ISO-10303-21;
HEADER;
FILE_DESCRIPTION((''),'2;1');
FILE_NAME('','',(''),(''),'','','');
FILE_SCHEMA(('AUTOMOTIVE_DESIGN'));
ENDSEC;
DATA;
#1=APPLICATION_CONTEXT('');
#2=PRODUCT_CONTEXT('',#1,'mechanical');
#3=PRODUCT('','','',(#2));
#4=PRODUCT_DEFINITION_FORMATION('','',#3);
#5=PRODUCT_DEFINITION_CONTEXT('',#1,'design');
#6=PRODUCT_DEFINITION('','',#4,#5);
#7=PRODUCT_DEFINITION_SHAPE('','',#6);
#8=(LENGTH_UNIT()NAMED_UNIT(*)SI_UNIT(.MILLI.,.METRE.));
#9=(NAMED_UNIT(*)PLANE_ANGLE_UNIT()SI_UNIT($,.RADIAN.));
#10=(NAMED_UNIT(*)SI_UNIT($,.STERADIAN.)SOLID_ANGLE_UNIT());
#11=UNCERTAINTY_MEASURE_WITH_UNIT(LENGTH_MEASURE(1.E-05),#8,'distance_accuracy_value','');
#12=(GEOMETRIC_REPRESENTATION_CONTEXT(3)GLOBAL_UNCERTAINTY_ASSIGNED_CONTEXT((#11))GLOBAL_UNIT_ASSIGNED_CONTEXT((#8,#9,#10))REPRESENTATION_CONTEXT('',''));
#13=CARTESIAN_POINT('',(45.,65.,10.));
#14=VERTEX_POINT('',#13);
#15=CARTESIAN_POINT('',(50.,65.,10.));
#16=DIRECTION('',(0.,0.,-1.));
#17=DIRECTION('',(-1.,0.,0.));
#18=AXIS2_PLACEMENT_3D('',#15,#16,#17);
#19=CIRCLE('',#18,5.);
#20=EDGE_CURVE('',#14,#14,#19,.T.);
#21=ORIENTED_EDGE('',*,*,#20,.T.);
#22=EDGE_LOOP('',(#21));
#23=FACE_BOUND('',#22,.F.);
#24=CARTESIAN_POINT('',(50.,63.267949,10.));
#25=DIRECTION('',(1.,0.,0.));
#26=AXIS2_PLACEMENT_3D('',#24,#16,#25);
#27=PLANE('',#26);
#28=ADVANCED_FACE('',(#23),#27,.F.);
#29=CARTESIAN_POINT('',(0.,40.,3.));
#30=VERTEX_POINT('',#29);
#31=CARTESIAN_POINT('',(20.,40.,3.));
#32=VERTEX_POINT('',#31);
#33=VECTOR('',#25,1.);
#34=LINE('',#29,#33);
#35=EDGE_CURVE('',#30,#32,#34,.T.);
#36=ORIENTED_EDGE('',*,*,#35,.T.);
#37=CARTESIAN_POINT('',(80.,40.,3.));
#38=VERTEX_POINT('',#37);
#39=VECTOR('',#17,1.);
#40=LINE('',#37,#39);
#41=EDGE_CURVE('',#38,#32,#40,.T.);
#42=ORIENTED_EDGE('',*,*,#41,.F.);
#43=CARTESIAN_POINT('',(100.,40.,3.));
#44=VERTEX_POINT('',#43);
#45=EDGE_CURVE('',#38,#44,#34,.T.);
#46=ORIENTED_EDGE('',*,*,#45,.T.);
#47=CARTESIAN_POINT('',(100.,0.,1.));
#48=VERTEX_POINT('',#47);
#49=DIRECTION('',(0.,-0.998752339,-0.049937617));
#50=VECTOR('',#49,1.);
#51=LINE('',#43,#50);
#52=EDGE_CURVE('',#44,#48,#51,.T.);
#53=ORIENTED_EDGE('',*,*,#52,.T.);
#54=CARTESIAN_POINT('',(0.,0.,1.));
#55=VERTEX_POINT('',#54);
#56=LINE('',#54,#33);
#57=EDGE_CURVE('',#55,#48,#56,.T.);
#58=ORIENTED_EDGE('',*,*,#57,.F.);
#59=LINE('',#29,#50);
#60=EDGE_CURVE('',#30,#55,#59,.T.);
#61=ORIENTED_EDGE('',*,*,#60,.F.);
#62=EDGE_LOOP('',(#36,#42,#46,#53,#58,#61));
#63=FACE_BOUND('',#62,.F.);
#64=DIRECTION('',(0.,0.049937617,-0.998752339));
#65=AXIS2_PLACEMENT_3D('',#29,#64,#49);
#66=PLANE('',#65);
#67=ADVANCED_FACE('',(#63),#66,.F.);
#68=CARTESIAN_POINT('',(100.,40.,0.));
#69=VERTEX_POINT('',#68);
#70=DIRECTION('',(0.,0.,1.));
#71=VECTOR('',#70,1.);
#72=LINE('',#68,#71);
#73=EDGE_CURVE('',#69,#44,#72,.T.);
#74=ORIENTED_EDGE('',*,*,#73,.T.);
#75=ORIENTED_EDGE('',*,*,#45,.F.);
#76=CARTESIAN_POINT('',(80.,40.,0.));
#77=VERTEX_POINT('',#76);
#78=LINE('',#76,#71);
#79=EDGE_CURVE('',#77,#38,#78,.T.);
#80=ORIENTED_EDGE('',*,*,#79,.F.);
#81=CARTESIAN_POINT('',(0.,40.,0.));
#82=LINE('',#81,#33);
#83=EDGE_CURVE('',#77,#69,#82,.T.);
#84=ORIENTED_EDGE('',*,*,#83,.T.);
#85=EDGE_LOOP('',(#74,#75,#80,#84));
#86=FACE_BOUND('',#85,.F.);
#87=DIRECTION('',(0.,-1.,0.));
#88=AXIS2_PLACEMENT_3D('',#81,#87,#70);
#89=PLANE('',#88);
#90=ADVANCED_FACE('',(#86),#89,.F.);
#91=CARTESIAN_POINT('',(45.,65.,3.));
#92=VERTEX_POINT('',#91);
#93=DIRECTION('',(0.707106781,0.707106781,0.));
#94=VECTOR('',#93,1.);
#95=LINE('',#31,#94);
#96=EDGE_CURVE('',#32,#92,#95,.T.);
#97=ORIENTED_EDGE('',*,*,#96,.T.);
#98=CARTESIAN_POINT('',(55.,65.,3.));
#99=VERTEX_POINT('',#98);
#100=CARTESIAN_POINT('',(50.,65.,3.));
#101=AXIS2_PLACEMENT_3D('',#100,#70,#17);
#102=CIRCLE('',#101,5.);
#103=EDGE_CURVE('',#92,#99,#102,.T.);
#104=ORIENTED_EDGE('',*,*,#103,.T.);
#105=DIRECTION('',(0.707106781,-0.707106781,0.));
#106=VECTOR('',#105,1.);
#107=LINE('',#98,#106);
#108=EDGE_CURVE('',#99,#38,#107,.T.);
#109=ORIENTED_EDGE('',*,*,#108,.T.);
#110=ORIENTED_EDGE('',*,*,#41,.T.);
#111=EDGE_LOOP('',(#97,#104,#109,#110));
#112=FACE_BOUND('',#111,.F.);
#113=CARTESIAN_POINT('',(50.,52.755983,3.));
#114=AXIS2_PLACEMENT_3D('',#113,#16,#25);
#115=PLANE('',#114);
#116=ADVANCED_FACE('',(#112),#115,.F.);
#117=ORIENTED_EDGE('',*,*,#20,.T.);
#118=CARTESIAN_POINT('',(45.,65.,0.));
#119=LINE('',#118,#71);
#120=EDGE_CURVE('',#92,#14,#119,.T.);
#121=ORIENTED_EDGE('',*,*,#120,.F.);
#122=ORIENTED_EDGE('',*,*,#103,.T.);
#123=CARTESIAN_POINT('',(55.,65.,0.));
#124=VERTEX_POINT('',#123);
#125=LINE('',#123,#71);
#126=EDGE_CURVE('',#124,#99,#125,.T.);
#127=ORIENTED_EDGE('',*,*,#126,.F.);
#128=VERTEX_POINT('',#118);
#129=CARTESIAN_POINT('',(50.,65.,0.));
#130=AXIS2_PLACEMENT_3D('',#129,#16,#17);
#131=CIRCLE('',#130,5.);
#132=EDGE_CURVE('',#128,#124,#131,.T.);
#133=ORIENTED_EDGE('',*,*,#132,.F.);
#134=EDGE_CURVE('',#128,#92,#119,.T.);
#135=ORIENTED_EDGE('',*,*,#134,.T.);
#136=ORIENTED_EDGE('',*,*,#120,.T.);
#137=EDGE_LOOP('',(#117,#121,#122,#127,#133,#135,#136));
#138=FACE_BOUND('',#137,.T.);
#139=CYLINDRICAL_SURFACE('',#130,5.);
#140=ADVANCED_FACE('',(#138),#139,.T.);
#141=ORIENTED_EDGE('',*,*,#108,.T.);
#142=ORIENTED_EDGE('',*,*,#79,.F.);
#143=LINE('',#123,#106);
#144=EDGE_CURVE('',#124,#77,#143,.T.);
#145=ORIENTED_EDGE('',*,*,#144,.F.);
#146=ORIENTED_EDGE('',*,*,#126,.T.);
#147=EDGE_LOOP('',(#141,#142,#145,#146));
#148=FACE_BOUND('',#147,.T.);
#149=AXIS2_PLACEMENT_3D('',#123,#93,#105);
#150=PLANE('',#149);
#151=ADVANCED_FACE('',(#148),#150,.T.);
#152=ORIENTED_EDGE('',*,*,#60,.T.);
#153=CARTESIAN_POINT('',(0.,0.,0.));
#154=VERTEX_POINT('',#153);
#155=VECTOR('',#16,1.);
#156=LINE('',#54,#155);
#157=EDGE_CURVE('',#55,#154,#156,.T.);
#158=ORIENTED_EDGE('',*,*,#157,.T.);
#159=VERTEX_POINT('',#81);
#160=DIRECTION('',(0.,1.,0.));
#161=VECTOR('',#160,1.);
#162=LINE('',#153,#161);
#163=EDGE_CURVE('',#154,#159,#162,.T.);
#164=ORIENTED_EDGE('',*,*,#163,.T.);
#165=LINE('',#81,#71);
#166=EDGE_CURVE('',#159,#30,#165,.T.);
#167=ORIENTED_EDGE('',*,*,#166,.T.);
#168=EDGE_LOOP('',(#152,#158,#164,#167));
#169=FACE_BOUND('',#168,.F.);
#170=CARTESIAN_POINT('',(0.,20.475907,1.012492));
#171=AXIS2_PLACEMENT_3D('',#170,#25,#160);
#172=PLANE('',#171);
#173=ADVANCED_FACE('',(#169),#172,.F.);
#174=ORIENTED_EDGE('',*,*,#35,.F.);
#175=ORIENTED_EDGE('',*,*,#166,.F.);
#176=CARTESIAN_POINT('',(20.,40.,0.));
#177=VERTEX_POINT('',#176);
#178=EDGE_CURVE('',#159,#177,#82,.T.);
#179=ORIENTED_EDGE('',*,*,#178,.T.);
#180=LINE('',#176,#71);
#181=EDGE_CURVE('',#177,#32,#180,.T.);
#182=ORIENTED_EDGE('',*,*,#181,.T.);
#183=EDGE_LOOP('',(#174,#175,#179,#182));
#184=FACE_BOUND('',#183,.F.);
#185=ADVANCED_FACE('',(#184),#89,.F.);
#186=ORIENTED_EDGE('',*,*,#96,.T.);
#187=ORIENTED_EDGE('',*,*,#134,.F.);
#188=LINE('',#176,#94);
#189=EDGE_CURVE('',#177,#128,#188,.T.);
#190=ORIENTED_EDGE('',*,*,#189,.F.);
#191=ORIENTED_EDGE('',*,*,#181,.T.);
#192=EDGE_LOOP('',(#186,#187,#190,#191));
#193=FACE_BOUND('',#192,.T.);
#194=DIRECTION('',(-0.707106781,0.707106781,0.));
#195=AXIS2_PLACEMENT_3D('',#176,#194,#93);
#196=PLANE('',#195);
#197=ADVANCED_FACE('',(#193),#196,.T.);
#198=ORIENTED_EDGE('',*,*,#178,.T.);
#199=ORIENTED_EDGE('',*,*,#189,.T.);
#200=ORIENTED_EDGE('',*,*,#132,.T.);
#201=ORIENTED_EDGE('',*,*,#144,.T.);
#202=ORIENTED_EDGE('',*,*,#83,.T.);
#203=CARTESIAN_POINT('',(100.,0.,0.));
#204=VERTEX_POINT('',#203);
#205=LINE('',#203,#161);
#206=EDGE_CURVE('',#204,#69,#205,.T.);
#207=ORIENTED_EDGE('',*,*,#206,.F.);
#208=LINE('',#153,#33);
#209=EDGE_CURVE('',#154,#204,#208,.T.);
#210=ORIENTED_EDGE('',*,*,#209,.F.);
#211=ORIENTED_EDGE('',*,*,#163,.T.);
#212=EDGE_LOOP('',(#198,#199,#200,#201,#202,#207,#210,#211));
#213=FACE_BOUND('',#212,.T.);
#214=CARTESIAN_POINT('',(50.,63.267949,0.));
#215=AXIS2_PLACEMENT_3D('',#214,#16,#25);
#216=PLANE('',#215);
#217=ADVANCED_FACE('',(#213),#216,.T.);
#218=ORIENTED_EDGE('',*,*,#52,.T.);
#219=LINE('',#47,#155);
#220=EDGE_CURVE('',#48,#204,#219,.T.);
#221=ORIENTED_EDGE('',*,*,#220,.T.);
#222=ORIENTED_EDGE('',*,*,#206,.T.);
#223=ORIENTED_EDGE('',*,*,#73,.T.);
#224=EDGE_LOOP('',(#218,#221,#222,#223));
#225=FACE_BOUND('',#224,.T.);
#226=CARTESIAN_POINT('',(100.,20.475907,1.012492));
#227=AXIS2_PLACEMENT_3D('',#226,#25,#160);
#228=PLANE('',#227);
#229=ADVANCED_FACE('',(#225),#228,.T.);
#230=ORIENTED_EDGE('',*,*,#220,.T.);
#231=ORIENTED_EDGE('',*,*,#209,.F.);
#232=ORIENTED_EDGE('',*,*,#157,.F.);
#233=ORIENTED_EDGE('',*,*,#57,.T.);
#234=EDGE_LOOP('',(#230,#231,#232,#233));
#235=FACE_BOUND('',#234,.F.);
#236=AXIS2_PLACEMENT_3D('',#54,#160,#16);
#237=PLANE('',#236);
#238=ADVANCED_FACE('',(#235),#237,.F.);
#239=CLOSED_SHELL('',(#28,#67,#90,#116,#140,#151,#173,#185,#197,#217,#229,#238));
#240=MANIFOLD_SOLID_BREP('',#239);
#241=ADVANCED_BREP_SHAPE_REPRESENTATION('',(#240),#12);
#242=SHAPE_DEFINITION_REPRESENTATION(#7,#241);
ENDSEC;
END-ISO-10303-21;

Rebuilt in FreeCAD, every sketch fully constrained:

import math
import FreeCAD as App
import Part
import Sketcher
from FreeCAD import Vector
Q = App.Units.Quantity


def add_polygon(sketch, points):
    """Adds a closed chain of lines whose ends are joined by coincident constraints."""
    first, n = sketch.GeometryCount, len(points)
    for a, b in zip(points, points[1:] + points[:1]):
        sketch.addGeometry(Part.LineSegment(App.Vector(*a, 0), App.Vector(*b, 0)), False)
    for i in range(n):
        sketch.addConstraint(Sketcher.Constraint("Coincident", first + i, 2, first + (i + 1) % n, 1))

doc = App.newDocument("Part")
body = doc.addObject("PartDesign::Body", "Body")

sketch1 = body.newObject("Sketcher::SketchObject", "Sketch")
sketch1.AttachmentSupport = (doc.getObject("YZ_Plane"), [""])
sketch1.MapMode = "FlatFace"
add_polygon(sketch1, [(0, 1), (0, 0), (40, 0), (40, 3)])
sketch1.addConstraint(Sketcher.Constraint("Vertical", 0))
sketch1.addConstraint(Sketcher.Constraint("Horizontal", 1))
sketch1.addConstraint(Sketcher.Constraint("Vertical", 2))
sketch1.addConstraint(Sketcher.Constraint("Coincident", 0, 2, -1, 1))
sketch1.addConstraint(Sketcher.Constraint("DistanceX", 1, 1, 1, 2, Q("40 mm")))
sketch1.addConstraint(Sketcher.Constraint("DistanceY", 0, 2, 0, 1, Q("1 mm")))
sketch1.addConstraint(Sketcher.Constraint("DistanceY", 2, 1, 2, 2, Q("3 mm")))
pad1 = body.newObject("PartDesign::Pad", "Pad")
pad1.Profile = sketch1
pad1.Length = 100

sketch2 = body.newObject("Sketcher::SketchObject", "Sketch001")
sketch2.AttachmentSupport = (doc.getObject("XY_Plane"), [""])
sketch2.MapMode = "FlatFace"
sketch2.addGeometry(Part.ArcOfCircle(Part.Circle(Vector(50, 65, 0), Vector(0, 0, 1), 5), math.radians(180), math.radians(360)), False)
sketch2.addGeometry(Part.LineSegment(Vector(55, 65, 0), Vector(80, 40, 0)), False)
sketch2.addGeometry(Part.LineSegment(Vector(80, 40, 0), Vector(20, 40, 0)), False)
sketch2.addGeometry(Part.LineSegment(Vector(20, 40, 0), Vector(45, 65, 0)), False)
sketch2.addConstraint(Sketcher.Constraint("Coincident", 0, 2, 1, 1))
sketch2.addConstraint(Sketcher.Constraint("Coincident", 1, 2, 2, 1))
sketch2.addConstraint(Sketcher.Constraint("Coincident", 2, 2, 3, 1))
sketch2.addConstraint(Sketcher.Constraint("Coincident", 3, 2, 0, 1))
sketch2.addConstraint(Sketcher.Constraint("Horizontal", 2))
sketch2.addConstraint(Sketcher.Constraint("Perpendicular", 1, 3))
sketch2.addConstraint(Sketcher.Constraint("Horizontal", 0, 2, 3, 2))
sketch2.addConstraint(Sketcher.Constraint("Equal", 1, 3))
sketch2.addConstraint(Sketcher.Constraint("Radius", 0, Q("5 mm")))
sketch2.addConstraint(Sketcher.Constraint("DistanceX", 2, 2, 2, 1, Q("60 mm")))
sketch2.addConstraint(Sketcher.Constraint("DistanceX", -1, 1, 0, 3, Q("50 mm")))
sketch2.addConstraint(Sketcher.Constraint("DistanceY", -1, 1, 0, 3, Q("65 mm")))
sketch2.addConstraint(Sketcher.Constraint("DistanceY", -1, 1, 0, 2, Q("65 mm")))
pad2 = body.newObject("PartDesign::Pad", "Pad001")
pad2.Profile = sketch2
pad2.Length = 3

sketch3 = body.newObject("Sketcher::SketchObject", "Sketch002")
sketch3.AttachmentSupport = (doc.getObject("XY_Plane"), [""])
sketch3.MapMode = "FlatFace"
sketch3.addGeometry(Part.Circle(Vector(50, 65, 0), Vector(0, 0, 1), 5), False)
sketch3.addConstraint(Sketcher.Constraint("Diameter", 0, Q("10 mm")))
sketch3.addConstraint(Sketcher.Constraint("DistanceX", -1, 1, 0, 3, Q("50 mm")))
sketch3.addConstraint(Sketcher.Constraint("DistanceY", -1, 1, 0, 3, Q("65 mm")))
pad3 = body.newObject("PartDesign::Pad", "Pad002")
pad3.Profile = sketch3
pad3.Length = 10

doc.recompute()
